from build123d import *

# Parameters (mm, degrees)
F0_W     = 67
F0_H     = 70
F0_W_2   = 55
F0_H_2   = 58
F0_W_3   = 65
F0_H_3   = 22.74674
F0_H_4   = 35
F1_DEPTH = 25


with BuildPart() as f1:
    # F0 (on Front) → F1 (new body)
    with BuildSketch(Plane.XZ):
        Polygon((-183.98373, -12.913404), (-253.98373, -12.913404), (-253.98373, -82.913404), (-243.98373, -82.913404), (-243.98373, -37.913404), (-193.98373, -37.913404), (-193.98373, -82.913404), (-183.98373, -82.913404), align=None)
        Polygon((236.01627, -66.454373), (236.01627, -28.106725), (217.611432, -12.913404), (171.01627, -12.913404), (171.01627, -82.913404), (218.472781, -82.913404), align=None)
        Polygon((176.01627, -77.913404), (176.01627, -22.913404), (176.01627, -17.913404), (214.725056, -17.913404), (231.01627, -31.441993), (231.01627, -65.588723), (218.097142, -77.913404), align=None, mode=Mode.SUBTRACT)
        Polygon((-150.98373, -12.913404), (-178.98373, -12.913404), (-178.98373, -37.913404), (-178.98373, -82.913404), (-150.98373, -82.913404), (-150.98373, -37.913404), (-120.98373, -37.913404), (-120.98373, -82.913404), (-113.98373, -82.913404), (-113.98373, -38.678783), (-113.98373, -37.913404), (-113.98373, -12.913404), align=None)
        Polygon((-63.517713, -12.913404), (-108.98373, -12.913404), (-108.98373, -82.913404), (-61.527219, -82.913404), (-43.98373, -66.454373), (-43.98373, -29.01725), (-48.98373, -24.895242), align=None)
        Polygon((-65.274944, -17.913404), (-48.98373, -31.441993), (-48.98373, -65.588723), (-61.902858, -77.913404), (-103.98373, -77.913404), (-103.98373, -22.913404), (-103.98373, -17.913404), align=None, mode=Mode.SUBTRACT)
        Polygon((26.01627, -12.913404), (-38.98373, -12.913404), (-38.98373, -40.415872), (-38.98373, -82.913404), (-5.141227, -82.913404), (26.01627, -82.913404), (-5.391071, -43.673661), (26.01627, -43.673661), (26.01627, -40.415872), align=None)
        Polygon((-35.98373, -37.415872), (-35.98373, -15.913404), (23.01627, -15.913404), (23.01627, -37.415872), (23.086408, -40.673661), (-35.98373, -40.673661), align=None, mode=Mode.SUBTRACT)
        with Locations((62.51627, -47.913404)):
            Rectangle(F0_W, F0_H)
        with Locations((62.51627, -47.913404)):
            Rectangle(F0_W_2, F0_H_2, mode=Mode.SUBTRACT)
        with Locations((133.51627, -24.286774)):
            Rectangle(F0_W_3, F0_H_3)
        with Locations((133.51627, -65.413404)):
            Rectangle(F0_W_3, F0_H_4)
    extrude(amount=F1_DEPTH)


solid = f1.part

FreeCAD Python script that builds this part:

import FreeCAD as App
import Part
import Sketcher

V = App.Vector
Q = App.Units.Quantity

doc = App.newDocument("Part")
body = doc.addObject("PartDesign::Body", "Body")
body.AllowCompound = True

# Sketch on XZ plane
sketch1 = body.newObject("Sketcher::SketchObject", "Sketch")
sketch1.AttachmentSupport = (doc.getObject("XZ_Plane"), [""])
sketch1.MapMode = "FlatFace"
sketch1.addGeometry(Part.LineSegment(V(-183.98373, -12.913404, 0), V(-253.98373, -12.913404, 0)), False)
sketch1.addGeometry(Part.LineSegment(V(-253.98373, -12.913404, 0), V(-253.98373, -82.913404, 0)), False)
sketch1.addGeometry(Part.LineSegment(V(-253.98373, -82.913404, 0), V(-243.98373, -82.913404, 0)), False)
sketch1.addGeometry(Part.LineSegment(V(-243.98373, -82.913404, 0), V(-243.98373, -37.913404, 0)), False)
sketch1.addGeometry(Part.LineSegment(V(-243.98373, -37.913404, 0), V(-193.98373, -37.913404, 0)), False)
sketch1.addGeometry(Part.LineSegment(V(-193.98373, -37.913404, 0), V(-193.98373, -82.913404, 0)), False)
sketch1.addGeometry(Part.LineSegment(V(-193.98373, -82.913404, 0), V(-183.98373, -82.913404, 0)), False)
sketch1.addGeometry(Part.LineSegment(V(-183.98373, -82.913404, 0), V(-183.98373, -12.913404, 0)), False)
sketch1.addGeometry(Part.LineSegment(V(236.01627, -66.454373, 0), V(236.01627, -28.106725, 0)), False)
sketch1.addGeometry(Part.LineSegment(V(236.01627, -28.106725, 0), V(217.611432, -12.913404, 0)), False)
sketch1.addGeometry(Part.LineSegment(V(217.611432, -12.913404, 0), V(171.01627, -12.913404, 0)), False)
sketch1.addGeometry(Part.LineSegment(V(171.01627, -12.913404, 0), V(171.01627, -82.913404, 0)), False)
sketch1.addGeometry(Part.LineSegment(V(171.01627, -82.913404, 0), V(218.472781, -82.913404, 0)), False)
sketch1.addGeometry(Part.LineSegment(V(218.472781, -82.913404, 0), V(236.01627, -66.454373, 0)), False)
sketch1.addGeometry(Part.LineSegment(V(218.097142, -77.913404, 0), V(176.01627, -77.913404, 0)), False)
sketch1.addGeometry(Part.LineSegment(V(176.01627, -77.913404, 0), V(176.01627, -17.913404, 0)), False)
sketch1.addGeometry(Part.LineSegment(V(176.01627, -17.913404, 0), V(214.725056, -17.913404, 0)), False)
sketch1.addGeometry(Part.LineSegment(V(214.725056, -17.913404, 0), V(231.01627, -31.441993, 0)), False)
sketch1.addGeometry(Part.LineSegment(V(231.01627, -31.441993, 0), V(231.01627, -65.588723, 0)), False)
sketch1.addGeometry(Part.LineSegment(V(231.01627, -65.588723, 0), V(218.097142, -77.913404, 0)), False)
sketch1.addGeometry(Part.LineSegment(V(-178.98373, -12.913404, 0), V(-178.98373, -82.913404, 0)), False)
sketch1.addGeometry(Part.LineSegment(V(-178.98373, -82.913404, 0), V(-150.98373, -82.913404, 0)), False)
sketch1.addGeometry(Part.LineSegment(V(-150.98373, -82.913404, 0), V(-150.98373, -37.913404, 0)), False)
sketch1.addGeometry(Part.LineSegment(V(-150.98373, -37.913404, 0), V(-120.98373, -37.913404, 0)), False)
sketch1.addGeometry(Part.LineSegment(V(-120.98373, -37.913404, 0), V(-120.98373, -82.913404, 0)), False)
sketch1.addGeometry(Part.LineSegment(V(-120.98373, -82.913404, 0), V(-113.98373, -82.913404, 0)), False)
sketch1.addGeometry(Part.LineSegment(V(-113.98373, -82.913404, 0), V(-113.98373, -12.913404, 0)), False)
sketch1.addGeometry(Part.LineSegment(V(-113.98373, -12.913404, 0), V(-178.98373, -12.913404, 0)), False)
sketch1.addGeometry(Part.LineSegment(V(-63.517713, -12.913404, 0), V(-108.98373, -12.913404, 0)), False)
sketch1.addGeometry(Part.LineSegment(V(-108.98373, -12.913404, 0), V(-108.98373, -82.913404, 0)), False)
sketch1.addGeometry(Part.LineSegment(V(-108.98373, -82.913404, 0), V(-61.527219, -82.913404, 0)), False)
sketch1.addGeometry(Part.LineSegment(V(-61.527219, -82.913404, 0), V(-43.98373, -66.454373, 0)), False)
sketch1.addGeometry(Part.LineSegment(V(-43.98373, -66.454373, 0), V(-43.98373, -29.01725, 0)), False)
sketch1.addGeometry(Part.LineSegment(V(-43.98373, -29.01725, 0), V(-48.98373, -24.895242, 0)), False)
sketch1.addGeometry(Part.LineSegment(V(-48.98373, -24.895242, 0), V(-63.517713, -12.913404, 0)), False)
sketch1.addGeometry(Part.LineSegment(V(-103.98373, -17.913404, 0), V(-65.274944, -17.913404, 0)), False)
sketch1.addGeometry(Part.LineSegment(V(-65.274944, -17.913404, 0), V(-48.98373, -31.441993, 0)), False)
sketch1.addGeometry(Part.LineSegment(V(-48.98373, -31.441993, 0), V(-48.98373, -65.588723, 0)), False)
sketch1.addGeometry(Part.LineSegment(V(-48.98373, -65.588723, 0), V(-61.902858, -77.913404, 0)), False)
sketch1.addGeometry(Part.LineSegment(V(-61.902858, -77.913404, 0), V(-103.98373, -77.913404, 0)), False)
sketch1.addGeometry(Part.LineSegment(V(-103.98373, -77.913404, 0), V(-103.98373, -17.913404, 0)), False)
sketch1.addGeometry(Part.LineSegment(V(26.01627, -12.913404, 0), V(-38.98373, -12.913404, 0)), False)
sketch1.addGeometry(Part.LineSegment(V(-38.98373, -12.913404, 0), V(-38.98373, -82.913404, 0)), False)
sketch1.addGeometry(Part.LineSegment(V(-38.98373, -82.913404, 0), V(26.01627, -82.913404, 0)), False)
sketch1.addGeometry(Part.LineSegment(V(26.01627, -82.913404, 0), V(-5.391071, -43.673661, 0)), False)
sketch1.addGeometry(Part.LineSegment(V(-5.391071, -43.673661, 0), V(26.01627, -43.673661, 0)), False)
sketch1.addGeometry(Part.LineSegment(V(26.01627, -43.673661, 0), V(26.01627, -12.913404, 0)), False)
sketch1.addGeometry(Part.LineSegment(V(-35.98373, -40.673661, 0), V(-35.98373, -15.913404, 0)), False)
sketch1.addGeometry(Part.LineSegment(V(-35.98373, -15.913404, 0), V(23.01627, -15.913404, 0)), False)
sketch1.addGeometry(Part.LineSegment(V(23.01627, -15.913404, 0), V(23.01627, -37.415872, 0)), False)
sketch1.addGeometry(Part.LineSegment(V(23.01627, -37.415872, 0), V(23.086408, -40.673661, 0)), False)
sketch1.addGeometry(Part.LineSegment(V(23.086408, -40.673661, 0), V(-35.98373, -40.673661, 0)), False)
sketch1.addGeometry(Part.LineSegment(V(29.01627, -12.913404, 0), V(29.01627, -82.913404, 0)), False)
sketch1.addGeometry(Part.LineSegment(V(29.01627, -82.913404, 0), V(96.01627, -82.913404, 0)), False)
sketch1.addGeometry(Part.LineSegment(V(96.01627, -82.913404, 0), V(96.01627, -12.913404, 0)), False)
sketch1.addGeometry(Part.LineSegment(V(96.01627, -12.913404, 0), V(29.01627, -12.913404, 0)), False)
sketch1.addGeometry(Part.LineSegment(V(90.01627, -76.913404, 0), V(35.01627, -76.913404, 0)), False)
sketch1.addGeometry(Part.LineSegment(V(35.01627, -76.913404, 0), V(35.01627, -18.913404, 0)), False)
sketch1.addGeometry(Part.LineSegment(V(35.01627, -18.913404, 0), V(90.01627, -18.913404, 0)), False)
sketch1.addGeometry(Part.LineSegment(V(90.01627, -18.913404, 0), V(90.01627, -76.913404, 0)), False)
sketch1.addGeometry(Part.LineSegment(V(101.01627, -12.913404, 0), V(101.01627, -35.660144, 0)), False)
sketch1.addGeometry(Part.LineSegment(V(101.01627, -35.660144, 0), V(166.01627, -35.660144, 0)), False)
sketch1.addGeometry(Part.LineSegment(V(166.01627, -35.660144, 0), V(166.01627, -12.913404, 0)), False)
sketch1.addGeometry(Part.LineSegment(V(166.01627, -12.913404, 0), V(101.01627, -12.913404, 0)), False)
sketch1.addGeometry(Part.LineSegment(V(101.01627, -47.913404, 0), V(101.01627, -82.913404, 0)), False)
sketch1.addGeometry(Part.LineSegment(V(101.01627, -82.913404, 0), V(166.01627, -82.913404, 0)), False)
sketch1.addGeometry(Part.LineSegment(V(166.01627, -82.913404, 0), V(166.01627, -47.913404, 0)), False)
sketch1.addGeometry(Part.LineSegment(V(166.01627, -47.913404, 0), V(101.01627, -47.913404, 0)), False)
sketch1.addConstraint(Sketcher.Constraint("Coincident", 0, 2, 1, 1))
sketch1.addConstraint(Sketcher.Constraint("Coincident", 1, 2, 2, 1))
sketch1.addConstraint(Sketcher.Constraint("Coincident", 2, 2, 3, 1))
sketch1.addConstraint(Sketcher.Constraint("Coincident", 3, 2, 4, 1))
sketch1.addConstraint(Sketcher.Constraint("Coincident", 4, 2, 5, 1))
sketch1.addConstraint(Sketcher.Constraint("Coincident", 5, 2, 6, 1))
sketch1.addConstraint(Sketcher.Constraint("Coincident", 6, 2, 7, 1))
sketch1.addConstraint(Sketcher.Constraint("Coincident", 7, 2, 0, 1))
sketch1.addConstraint(Sketcher.Constraint("Coincident", 8, 2, 9, 1))
sketch1.addConstraint(Sketcher.Constraint("Coincident", 9, 2, 10, 1))
sketch1.addConstraint(Sketcher.Constraint("Coincident", 10, 2, 11, 1))
sketch1.addConstraint(Sketcher.Constraint("Coincident", 11, 2, 12, 1))
sketch1.addConstraint(Sketcher.Constraint("Coincident", 12, 2, 13, 1))
sketch1.addConstraint(Sketcher.Constraint("Coincident", 13, 2, 8, 1))
sketch1.addConstraint(Sketcher.Constraint("Coincident", 14, 2, 15, 1))
sketch1.addConstraint(Sketcher.Constraint("Coincident", 15, 2, 16, 1))
sketch1.addConstraint(Sketcher.Constraint("Coincident", 16, 2, 17, 1))
sketch1.addConstraint(Sketcher.Constraint("Coincident", 17, 2, 18, 1))
sketch1.addConstraint(Sketcher.Constraint("Coincident", 18, 2, 19, 1))
sketch1.addConstraint(Sketcher.Constraint("Coincident", 19, 2, 14, 1))
sketch1.addConstraint(Sketcher.Constraint("Coincident", 20, 2, 21, 1))
sketch1.addConstraint(Sketcher.Constraint("Coincident", 21, 2, 22, 1))
sketch1.addConstraint(Sketcher.Constraint("Coincident", 22, 2, 23, 1))
sketch1.addConstraint(Sketcher.Constraint("Coincident", 23, 2, 24, 1))
sketch1.addConstraint(Sketcher.Constraint("Coincident", 24, 2, 25, 1))
sketch1.addConstraint(Sketcher.Constraint("Coincident", 25, 2, 26, 1))
sketch1.addConstraint(Sketcher.Constraint("Coincident", 26, 2, 27, 1))
sketch1.addConstraint(Sketcher.Constraint("Coincident", 27, 2, 20, 1))
sketch1.addConstraint(Sketcher.Constraint("Coincident", 28, 2, 29, 1))
sketch1.addConstraint(Sketcher.Constraint("Coincident", 29, 2, 30, 1))
sketch1.addConstraint(Sketcher.Constraint("Coincident", 30, 2, 31, 1))
sketch1.addConstraint(Sketcher.Constraint("Coincident", 31, 2, 32, 1))
sketch1.addConstraint(Sketcher.Constraint("Coincident", 32, 2, 33, 1))
sketch1.addConstraint(Sketcher.Constraint("Coincident", 33, 2, 34, 1))
sketch1.addConstraint(Sketcher.Constraint("Coincident", 34, 2, 28, 1))
sketch1.addConstraint(Sketcher.Constraint("Coincident", 35, 2, 36, 1))
sketch1.addConstraint(Sketcher.Constraint("Coincident", 36, 2, 37, 1))
sketch1.addConstraint(Sketcher.Constraint("Coincident", 37, 2, 38, 1))
sketch1.addConstraint(Sketcher.Constraint("Coincident", 38, 2, 39, 1))
sketch1.addConstraint(Sketcher.Constraint("Coincident", 39, 2, 40, 1))
sketch1.addConstraint(Sketcher.Constraint("Coincident", 40, 2, 35, 1))
sketch1.addConstraint(Sketcher.Constraint("Coincident", 41, 2, 42, 1))
sketch1.addConstraint(Sketcher.Constraint("Coincident", 42, 2, 43, 1))
sketch1.addConstraint(Sketcher.Constraint("Coincident", 43, 2, 44, 1))
sketch1.addConstraint(Sketcher.Constraint("Coincident", 44, 2, 45, 1))
sketch1.addConstraint(Sketcher.Constraint("Coincident", 45, 2, 46, 1))
sketch1.addConstraint(Sketcher.Constraint("Coincident", 46, 2, 41, 1))
sketch1.addConstraint(Sketcher.Constraint("Coincident", 47, 2, 48, 1))
sketch1.addConstraint(Sketcher.Constraint("Coincident", 48, 2, 49, 1))
sketch1.addConstraint(Sketcher.Constraint("Coincident", 49, 2, 50, 1))
sketch1.addConstraint(Sketcher.Constraint("Coincident", 50, 2, 51, 1))
sketch1.addConstraint(Sketcher.Constraint("Coincident", 51, 2, 47, 1))
sketch1.addConstraint(Sketcher.Constraint("Coincident", 52, 2, 53, 1))
sketch1.addConstraint(Sketcher.Constraint("Coincident", 53, 2, 54, 1))
sketch1.addConstraint(Sketcher.Constraint("Coincident", 54, 2, 55, 1))
sketch1.addConstraint(Sketcher.Constraint("Coincident", 55, 2, 52, 1))
sketch1.addConstraint(Sketcher.Constraint("Coincident", 56, 2, 57, 1))
sketch1.addConstraint(Sketcher.Constraint("Coincident", 57, 2, 58, 1))
sketch1.addConstraint(Sketcher.Constraint("Coincident", 58, 2, 59, 1))
sketch1.addConstraint(Sketcher.Constraint("Coincident", 59, 2, 56, 1))
sketch1.addConstraint(Sketcher.Constraint("Coincident", 60, 2, 61, 1))
sketch1.addConstraint(Sketcher.Constraint("Coincident", 61, 2, 62, 1))
sketch1.addConstraint(Sketcher.Constraint("Coincident", 62, 2, 63, 1))
sketch1.addConstraint(Sketcher.Constraint("Coincident", 63, 2, 60, 1))
sketch1.addConstraint(Sketcher.Constraint("Coincident", 64, 2, 65, 1))
sketch1.addConstraint(Sketcher.Constraint("Coincident", 65, 2, 66, 1))
sketch1.addConstraint(Sketcher.Constraint("Coincident", 66, 2, 67, 1))
sketch1.addConstraint(Sketcher.Constraint("Coincident", 67, 2, 64, 1))
sketch1.addConstraint(Sketcher.Constraint("Horizontal", 0))
sketch1.addConstraint(Sketcher.Constraint("Vertical", 1))
sketch1.addConstraint(Sketcher.Constraint("Horizontal", 2))
sketch1.addConstraint(Sketcher.Constraint("Vertical", 3))
sketch1.addConstraint(Sketcher.Constraint("Horizontal", 4))
sketch1.addConstraint(Sketcher.Constraint("Vertical", 5))
sketch1.addConstraint(Sketcher.Constraint("Horizontal", 6))
sketch1.addConstraint(Sketcher.Constraint("Vertical", 7))
sketch1.addConstraint(Sketcher.Constraint("Vertical", 8))
sketch1.addConstraint(Sketcher.Constraint("Horizontal", 10))
sketch1.addConstraint(Sketcher.Constraint("Vertical", 11))
sketch1.addConstraint(Sketcher.Constraint("Horizontal", 12))
sketch1.addConstraint(Sketcher.Constraint("Horizontal", 14))
sketch1.addConstraint(Sketcher.Constraint("Vertical", 15))
sketch1.addConstraint(Sketcher.Constraint("Horizontal", 16))
sketch1.addConstraint(Sketcher.Constraint("Vertical", 18))
sketch1.addConstraint(Sketcher.Constraint("Vertical", 20))
sketch1.addConstraint(Sketcher.Constraint("Horizontal", 21))
sketch1.addConstraint(Sketcher.Constraint("Vertical", 22))
sketch1.addConstraint(Sketcher.Constraint("Horizontal", 23))
sketch1.addConstraint(Sketcher.Constraint("Vertical", 24))
sketch1.addConstraint(Sketcher.Constraint("Horizontal", 25))
sketch1.addConstraint(Sketcher.Constraint("Vertical", 26))
sketch1.addConstraint(Sketcher.Constraint("Horizontal", 27))
sketch1.addConstraint(Sketcher.Constraint("Horizontal", 28))
sketch1.addConstraint(Sketcher.Constraint("Vertical", 29))
sketch1.addConstraint(Sketcher.Constraint("Horizontal", 30))
sketch1.addConstraint(Sketcher.Constraint("Vertical", 32))
sketch1.addConstraint(Sketcher.Constraint("Horizontal", 35))
sketch1.addConstraint(Sketcher.Constraint("Vertical", 37))
sketch1.addConstraint(Sketcher.Constraint("Horizontal", 39))
sketch1.addConstraint(Sketcher.Constraint("Vertical", 40))
sketch1.addConstraint(Sketcher.Constraint("Horizontal", 41))
sketch1.addConstraint(Sketcher.Constraint("Vertical", 42))
sketch1.addConstraint(Sketcher.Constraint("Horizontal", 43))
sketch1.addConstraint(Sketcher.Constraint("Horizontal", 45))
sketch1.addConstraint(Sketcher.Constraint("Vertical", 46))
sketch1.addConstraint(Sketcher.Constraint("Vertical", 47))
sketch1.addConstraint(Sketcher.Constraint("Horizontal", 48))
sketch1.addConstraint(Sketcher.Constraint("Vertical", 49))
sketch1.addConstraint(Sketcher.Constraint("Horizontal", 51))
sketch1.addConstraint(Sketcher.Constraint("Vertical", 52))
sketch1.addConstraint(Sketcher.Constraint("Horizontal", 53))
sketch1.addConstraint(Sketcher.Constraint("Vertical", 54))
sketch1.addConstraint(Sketcher.Constraint("Horizontal", 55))
sketch1.addConstraint(Sketcher.Constraint("Horizontal", 56))
sketch1.addConstraint(Sketcher.Constraint("Vertical", 57))
sketch1.addConstraint(Sketcher.Constraint("Horizontal", 58))
sketch1.addConstraint(Sketcher.Constraint("Vertical", 59))
sketch1.addConstraint(Sketcher.Constraint("Vertical", 60))
sketch1.addConstraint(Sketcher.Constraint("Horizontal", 61))
sketch1.addConstraint(Sketcher.Constraint("Vertical", 62))
sketch1.addConstraint(Sketcher.Constraint("Horizontal", 63))
sketch1.addConstraint(Sketcher.Constraint("Vertical", 64))
sketch1.addConstraint(Sketcher.Constraint("Horizontal", 65))
sketch1.addConstraint(Sketcher.Constraint("Vertical", 66))
sketch1.addConstraint(Sketcher.Constraint("Horizontal", 67))
sketch1.addConstraint(Sketcher.Constraint("Parallel", 13, 31))
sketch1.addConstraint(Sketcher.Constraint("Parallel", 33, 34))
sketch1.addConstraint(Sketcher.Constraint("Parallel", 17, 36))
sketch1.addConstraint(Sketcher.Constraint("Parallel", 19, 38))
sketch1.addConstraint(Sketcher.Constraint("Horizontal", 2, 2, 5, 2))
sketch1.addConstraint(Sketcher.Constraint("Horizontal", 7, 2, 9, 2))
sketch1.addConstraint(Sketcher.Constraint("Horizontal", 6, 2, 11, 2))
sketch1.addConstraint(Sketcher.Constraint("Horizontal", 12, 2, 20, 2))
sketch1.addConstraint(Sketcher.Constraint("Horizontal", 4, 2, 22, 2))
sketch1.addConstraint(Sketcher.Constraint("Horizontal", 21, 2, 24, 2))
sketch1.addConstraint(Sketcher.Constraint("Horizontal", 10, 2, 26, 2))
sketch1.addConstraint(Sketcher.Constraint("Horizontal", 27, 2, 28, 2))
sketch1.addConstraint(Sketcher.Constraint("Horizontal", 25, 2, 29, 2))
sketch1.addConstraint(Sketcher.Constraint("Horizontal", 13, 2, 31, 2))
sketch1.addConstraint(Sketcher.Constraint("Horizontal", 16, 2, 35, 2))
sketch1.addConstraint(Sketcher.Constraint("Horizontal", 17, 2, 36, 2))
sketch1.addConstraint(Sketcher.Constraint("Horizontal", 18, 2, 37, 2))
sketch1.addConstraint(Sketcher.Constraint("Horizontal", 19, 2, 38, 2))
sketch1.addConstraint(Sketcher.Constraint("Horizontal", 34, 2, 41, 2))
sketch1.addConstraint(Sketcher.Constraint("Horizontal", 30, 2, 42, 2))
sketch1.addConstraint(Sketcher.Constraint("Horizontal", 43, 2, 52, 2))
sketch1.addConstraint(Sketcher.Constraint("Horizontal", 46, 2, 54, 2))
sketch1.addConstraint(Sketcher.Constraint("Horizontal", 55, 2, 62, 2))
sketch1.addConstraint(Sketcher.Constraint("Horizontal", 53, 2, 64, 2))
sketch1.addConstraint(Sketcher.Constraint("Vertical", 33, 2, 36, 2))
sketch1.addConstraint(Sketcher.Constraint("Vertical", 43, 2, 45, 2))
sketch1.addConstraint(Sketcher.Constraint("Vertical", 63, 2, 64, 2))
sketch1.addConstraint(Sketcher.Constraint("Vertical", 62, 2, 65, 2))
sketch1.addConstraint(Sketcher.Constraint("Equal", 2, 6))
sketch1.addConstraint(Sketcher.Constraint("Equal", 12, 30))
sketch1.addConstraint(Sketcher.Constraint("Equal", 16, 35))
sketch1.addConstraint(Sketcher.Constraint("Equal", 27, 41))
sketch1.addConstraint(Sketcher.Constraint("Equal", 43, 61))
sketch1.addConstraint(Sketcher.Constraint("Equal", 0, 1))
sketch1.addConstraint(Sketcher.Constraint("DistanceX", 0, 2, 0, 1, Q("70 mm")))
sketch1.addConstraint(Sketcher.Constraint("DistanceX", 2, 1, 2, 2, Q("10 mm")))
sketch1.addConstraint(Sketcher.Constraint("DistanceX", 21, 1, 21, 2, Q("28 mm")))
sketch1.addConstraint(Sketcher.Constraint("DistanceX", 23, 1, 23, 2, Q("30 mm")))
sketch1.addConstraint(Sketcher.Constraint("DistanceX", 25, 1, 25, 2, Q("7 mm")))
sketch1.addConstraint(Sketcher.Constraint("DistanceX", 48, 1, 48, 2, Q("59 mm")))
sketch1.addConstraint(Sketcher.Constraint("DistanceX", 53, 1, 53, 2, Q("67 mm")))
sketch1.addConstraint(Sketcher.Constraint("DistanceX", 56, 2, 56, 1, Q("55 mm")))
sketch1.addConstraint(Sketcher.Constraint("DistanceY", 3, 1, 3, 2, Q("45 mm")))
sketch1.addConstraint(Sketcher.Constraint("DistanceY", 15, 1, 15, 2, Q("60 mm")))
sketch1.addConstraint(Sketcher.Constraint("DistanceY", 57, 1, 57, 2, Q("58 mm")))
sketch1.addConstraint(Sketcher.Constraint("DistanceY", 64, 2, 64, 1, Q("35 mm")))
sketch1.addConstraint(Sketcher.Constraint("DistanceX", 12, 1, 12, 2, Q("47.456511 mm")))
sketch1.addConstraint(Sketcher.Constraint("DistanceX", 39, 2, 39, 1, Q("42.080872 mm")))
sketch1.addConstraint(Sketcher.Constraint("DistanceX", 45, 1, 45, 2, Q("31.407341 mm")))
sketch1.addConstraint(Sketcher.Constraint("DistanceY", 8, 1, 8, 2, Q("38.347648 mm")))
sketch1.addConstraint(Sketcher.Constraint("DistanceY", 18, 2, 18, 1, Q("34.14673 mm")))
sketch1.addConstraint(Sketcher.Constraint("DistanceY", 49, 2, 49, 1, Q("21.502468 mm")))
sketch1.addConstraint(Sketcher.Constraint("DistanceY", 60, 2, 60, 1, Q("22.74674 mm")))
sketch1.addConstraint(Sketcher.Constraint("Distance", 9, Q("23.865772 mm")))
sketch1.addConstraint(Sketcher.Constraint("Distance", 17, Q("21.17608 mm")))
sketch1.addConstraint(Sketcher.Constraint("DistanceX", 10, 2, 10, 1, Q("46.595162 mm")))
sketch1.addConstraint(Sketcher.Constraint("DistanceX", 16, 1, 16, 2, Q("38.708786 mm")))
sketch1.addConstraint(Sketcher.Constraint("DistanceX", 28, 2, 28, 1, Q("45.466017 mm")))
sketch1.addConstraint(Sketcher.Constraint("DistanceX", 51, 2, 51, 1, Q("59.070138 mm")))
sketch1.addConstraint(Sketcher.Constraint("DistanceY", 32, 1, 32, 2, Q("37.437123 mm")))
sketch1.addConstraint(Sketcher.Constraint("DistanceY", 46, 1, 46, 2, Q("30.760257 mm")))
sketch1.addConstraint(Sketcher.Constraint("DistanceY", 47, 1, 47, 2, Q("24.760257 mm")))
sketch1.addConstraint(Sketcher.Constraint("DistanceX", 0, 2, -1, 1, Q("253.98373 mm")))
sketch1.addConstraint(Sketcher.Constraint("DistanceX", -1, 1, 8, 2, Q("236.01627 mm")))
sketch1.addConstraint(Sketcher.Constraint("DistanceX", -1, 1, 9, 2, Q("217.611432 mm")))
sketch1.addConstraint(Sketcher.Constraint("DistanceX", -1, 1, 14, 2, Q("176.01627 mm")))
sketch1.addConstraint(Sketcher.Constraint("DistanceX", -1, 1, 17, 2, Q("231.01627 mm")))
sketch1.addConstraint(Sketcher.Constraint("DistanceX", 20, 2, -1, 1, Q("178.98373 mm")))
sketch1.addConstraint(Sketcher.Constraint("DistanceX", 28, 2, -1, 1, Q("108.98373 mm")))
sketch1.addConstraint(Sketcher.Constraint("DistanceY", 32, 2, -1, 1, Q("29.01725 mm")))
sketch1.addConstraint(Sketcher.Constraint("DistanceX", 33, 2, -1, 1, Q("48.98373 mm")))
sketch1.addConstraint(Sketcher.Constraint("DistanceX", 41, 2, -1, 1, Q("38.98373 mm")))
sketch1.addConstraint(Sketcher.Constraint("DistanceX", 47, 2, -1, 1, Q("35.98373 mm")))
sketch1.addConstraint(Sketcher.Constraint("DistanceY", 50, 2, -1, 1, Q("40.673661 mm")))
sketch1.addConstraint(Sketcher.Constraint("DistanceX", -1, 1, 52, 2, Q("29.01627 mm")))
sketch1.addConstraint(Sketcher.Constraint("DistanceX", -1, 1, 56, 2, Q("35.01627 mm")))
sketch1.addConstraint(Sketcher.Constraint("DistanceX", -1, 1, 60, 2, Q("101.01627 mm")))
sketch1.addConstraint(Sketcher.Constraint("DistanceY", 14, 2, -1, 1, Q("77.913404 mm")))
sketch1.addConstraint(Sketcher.Constraint("DistanceY", 56, 2, -1, 1, Q("76.913404 mm")))
pad1 = body.newObject("PartDesign::Pad", "Pad")
pad1.Profile = sketch1
pad1.Length = 25

doc.recompute()
